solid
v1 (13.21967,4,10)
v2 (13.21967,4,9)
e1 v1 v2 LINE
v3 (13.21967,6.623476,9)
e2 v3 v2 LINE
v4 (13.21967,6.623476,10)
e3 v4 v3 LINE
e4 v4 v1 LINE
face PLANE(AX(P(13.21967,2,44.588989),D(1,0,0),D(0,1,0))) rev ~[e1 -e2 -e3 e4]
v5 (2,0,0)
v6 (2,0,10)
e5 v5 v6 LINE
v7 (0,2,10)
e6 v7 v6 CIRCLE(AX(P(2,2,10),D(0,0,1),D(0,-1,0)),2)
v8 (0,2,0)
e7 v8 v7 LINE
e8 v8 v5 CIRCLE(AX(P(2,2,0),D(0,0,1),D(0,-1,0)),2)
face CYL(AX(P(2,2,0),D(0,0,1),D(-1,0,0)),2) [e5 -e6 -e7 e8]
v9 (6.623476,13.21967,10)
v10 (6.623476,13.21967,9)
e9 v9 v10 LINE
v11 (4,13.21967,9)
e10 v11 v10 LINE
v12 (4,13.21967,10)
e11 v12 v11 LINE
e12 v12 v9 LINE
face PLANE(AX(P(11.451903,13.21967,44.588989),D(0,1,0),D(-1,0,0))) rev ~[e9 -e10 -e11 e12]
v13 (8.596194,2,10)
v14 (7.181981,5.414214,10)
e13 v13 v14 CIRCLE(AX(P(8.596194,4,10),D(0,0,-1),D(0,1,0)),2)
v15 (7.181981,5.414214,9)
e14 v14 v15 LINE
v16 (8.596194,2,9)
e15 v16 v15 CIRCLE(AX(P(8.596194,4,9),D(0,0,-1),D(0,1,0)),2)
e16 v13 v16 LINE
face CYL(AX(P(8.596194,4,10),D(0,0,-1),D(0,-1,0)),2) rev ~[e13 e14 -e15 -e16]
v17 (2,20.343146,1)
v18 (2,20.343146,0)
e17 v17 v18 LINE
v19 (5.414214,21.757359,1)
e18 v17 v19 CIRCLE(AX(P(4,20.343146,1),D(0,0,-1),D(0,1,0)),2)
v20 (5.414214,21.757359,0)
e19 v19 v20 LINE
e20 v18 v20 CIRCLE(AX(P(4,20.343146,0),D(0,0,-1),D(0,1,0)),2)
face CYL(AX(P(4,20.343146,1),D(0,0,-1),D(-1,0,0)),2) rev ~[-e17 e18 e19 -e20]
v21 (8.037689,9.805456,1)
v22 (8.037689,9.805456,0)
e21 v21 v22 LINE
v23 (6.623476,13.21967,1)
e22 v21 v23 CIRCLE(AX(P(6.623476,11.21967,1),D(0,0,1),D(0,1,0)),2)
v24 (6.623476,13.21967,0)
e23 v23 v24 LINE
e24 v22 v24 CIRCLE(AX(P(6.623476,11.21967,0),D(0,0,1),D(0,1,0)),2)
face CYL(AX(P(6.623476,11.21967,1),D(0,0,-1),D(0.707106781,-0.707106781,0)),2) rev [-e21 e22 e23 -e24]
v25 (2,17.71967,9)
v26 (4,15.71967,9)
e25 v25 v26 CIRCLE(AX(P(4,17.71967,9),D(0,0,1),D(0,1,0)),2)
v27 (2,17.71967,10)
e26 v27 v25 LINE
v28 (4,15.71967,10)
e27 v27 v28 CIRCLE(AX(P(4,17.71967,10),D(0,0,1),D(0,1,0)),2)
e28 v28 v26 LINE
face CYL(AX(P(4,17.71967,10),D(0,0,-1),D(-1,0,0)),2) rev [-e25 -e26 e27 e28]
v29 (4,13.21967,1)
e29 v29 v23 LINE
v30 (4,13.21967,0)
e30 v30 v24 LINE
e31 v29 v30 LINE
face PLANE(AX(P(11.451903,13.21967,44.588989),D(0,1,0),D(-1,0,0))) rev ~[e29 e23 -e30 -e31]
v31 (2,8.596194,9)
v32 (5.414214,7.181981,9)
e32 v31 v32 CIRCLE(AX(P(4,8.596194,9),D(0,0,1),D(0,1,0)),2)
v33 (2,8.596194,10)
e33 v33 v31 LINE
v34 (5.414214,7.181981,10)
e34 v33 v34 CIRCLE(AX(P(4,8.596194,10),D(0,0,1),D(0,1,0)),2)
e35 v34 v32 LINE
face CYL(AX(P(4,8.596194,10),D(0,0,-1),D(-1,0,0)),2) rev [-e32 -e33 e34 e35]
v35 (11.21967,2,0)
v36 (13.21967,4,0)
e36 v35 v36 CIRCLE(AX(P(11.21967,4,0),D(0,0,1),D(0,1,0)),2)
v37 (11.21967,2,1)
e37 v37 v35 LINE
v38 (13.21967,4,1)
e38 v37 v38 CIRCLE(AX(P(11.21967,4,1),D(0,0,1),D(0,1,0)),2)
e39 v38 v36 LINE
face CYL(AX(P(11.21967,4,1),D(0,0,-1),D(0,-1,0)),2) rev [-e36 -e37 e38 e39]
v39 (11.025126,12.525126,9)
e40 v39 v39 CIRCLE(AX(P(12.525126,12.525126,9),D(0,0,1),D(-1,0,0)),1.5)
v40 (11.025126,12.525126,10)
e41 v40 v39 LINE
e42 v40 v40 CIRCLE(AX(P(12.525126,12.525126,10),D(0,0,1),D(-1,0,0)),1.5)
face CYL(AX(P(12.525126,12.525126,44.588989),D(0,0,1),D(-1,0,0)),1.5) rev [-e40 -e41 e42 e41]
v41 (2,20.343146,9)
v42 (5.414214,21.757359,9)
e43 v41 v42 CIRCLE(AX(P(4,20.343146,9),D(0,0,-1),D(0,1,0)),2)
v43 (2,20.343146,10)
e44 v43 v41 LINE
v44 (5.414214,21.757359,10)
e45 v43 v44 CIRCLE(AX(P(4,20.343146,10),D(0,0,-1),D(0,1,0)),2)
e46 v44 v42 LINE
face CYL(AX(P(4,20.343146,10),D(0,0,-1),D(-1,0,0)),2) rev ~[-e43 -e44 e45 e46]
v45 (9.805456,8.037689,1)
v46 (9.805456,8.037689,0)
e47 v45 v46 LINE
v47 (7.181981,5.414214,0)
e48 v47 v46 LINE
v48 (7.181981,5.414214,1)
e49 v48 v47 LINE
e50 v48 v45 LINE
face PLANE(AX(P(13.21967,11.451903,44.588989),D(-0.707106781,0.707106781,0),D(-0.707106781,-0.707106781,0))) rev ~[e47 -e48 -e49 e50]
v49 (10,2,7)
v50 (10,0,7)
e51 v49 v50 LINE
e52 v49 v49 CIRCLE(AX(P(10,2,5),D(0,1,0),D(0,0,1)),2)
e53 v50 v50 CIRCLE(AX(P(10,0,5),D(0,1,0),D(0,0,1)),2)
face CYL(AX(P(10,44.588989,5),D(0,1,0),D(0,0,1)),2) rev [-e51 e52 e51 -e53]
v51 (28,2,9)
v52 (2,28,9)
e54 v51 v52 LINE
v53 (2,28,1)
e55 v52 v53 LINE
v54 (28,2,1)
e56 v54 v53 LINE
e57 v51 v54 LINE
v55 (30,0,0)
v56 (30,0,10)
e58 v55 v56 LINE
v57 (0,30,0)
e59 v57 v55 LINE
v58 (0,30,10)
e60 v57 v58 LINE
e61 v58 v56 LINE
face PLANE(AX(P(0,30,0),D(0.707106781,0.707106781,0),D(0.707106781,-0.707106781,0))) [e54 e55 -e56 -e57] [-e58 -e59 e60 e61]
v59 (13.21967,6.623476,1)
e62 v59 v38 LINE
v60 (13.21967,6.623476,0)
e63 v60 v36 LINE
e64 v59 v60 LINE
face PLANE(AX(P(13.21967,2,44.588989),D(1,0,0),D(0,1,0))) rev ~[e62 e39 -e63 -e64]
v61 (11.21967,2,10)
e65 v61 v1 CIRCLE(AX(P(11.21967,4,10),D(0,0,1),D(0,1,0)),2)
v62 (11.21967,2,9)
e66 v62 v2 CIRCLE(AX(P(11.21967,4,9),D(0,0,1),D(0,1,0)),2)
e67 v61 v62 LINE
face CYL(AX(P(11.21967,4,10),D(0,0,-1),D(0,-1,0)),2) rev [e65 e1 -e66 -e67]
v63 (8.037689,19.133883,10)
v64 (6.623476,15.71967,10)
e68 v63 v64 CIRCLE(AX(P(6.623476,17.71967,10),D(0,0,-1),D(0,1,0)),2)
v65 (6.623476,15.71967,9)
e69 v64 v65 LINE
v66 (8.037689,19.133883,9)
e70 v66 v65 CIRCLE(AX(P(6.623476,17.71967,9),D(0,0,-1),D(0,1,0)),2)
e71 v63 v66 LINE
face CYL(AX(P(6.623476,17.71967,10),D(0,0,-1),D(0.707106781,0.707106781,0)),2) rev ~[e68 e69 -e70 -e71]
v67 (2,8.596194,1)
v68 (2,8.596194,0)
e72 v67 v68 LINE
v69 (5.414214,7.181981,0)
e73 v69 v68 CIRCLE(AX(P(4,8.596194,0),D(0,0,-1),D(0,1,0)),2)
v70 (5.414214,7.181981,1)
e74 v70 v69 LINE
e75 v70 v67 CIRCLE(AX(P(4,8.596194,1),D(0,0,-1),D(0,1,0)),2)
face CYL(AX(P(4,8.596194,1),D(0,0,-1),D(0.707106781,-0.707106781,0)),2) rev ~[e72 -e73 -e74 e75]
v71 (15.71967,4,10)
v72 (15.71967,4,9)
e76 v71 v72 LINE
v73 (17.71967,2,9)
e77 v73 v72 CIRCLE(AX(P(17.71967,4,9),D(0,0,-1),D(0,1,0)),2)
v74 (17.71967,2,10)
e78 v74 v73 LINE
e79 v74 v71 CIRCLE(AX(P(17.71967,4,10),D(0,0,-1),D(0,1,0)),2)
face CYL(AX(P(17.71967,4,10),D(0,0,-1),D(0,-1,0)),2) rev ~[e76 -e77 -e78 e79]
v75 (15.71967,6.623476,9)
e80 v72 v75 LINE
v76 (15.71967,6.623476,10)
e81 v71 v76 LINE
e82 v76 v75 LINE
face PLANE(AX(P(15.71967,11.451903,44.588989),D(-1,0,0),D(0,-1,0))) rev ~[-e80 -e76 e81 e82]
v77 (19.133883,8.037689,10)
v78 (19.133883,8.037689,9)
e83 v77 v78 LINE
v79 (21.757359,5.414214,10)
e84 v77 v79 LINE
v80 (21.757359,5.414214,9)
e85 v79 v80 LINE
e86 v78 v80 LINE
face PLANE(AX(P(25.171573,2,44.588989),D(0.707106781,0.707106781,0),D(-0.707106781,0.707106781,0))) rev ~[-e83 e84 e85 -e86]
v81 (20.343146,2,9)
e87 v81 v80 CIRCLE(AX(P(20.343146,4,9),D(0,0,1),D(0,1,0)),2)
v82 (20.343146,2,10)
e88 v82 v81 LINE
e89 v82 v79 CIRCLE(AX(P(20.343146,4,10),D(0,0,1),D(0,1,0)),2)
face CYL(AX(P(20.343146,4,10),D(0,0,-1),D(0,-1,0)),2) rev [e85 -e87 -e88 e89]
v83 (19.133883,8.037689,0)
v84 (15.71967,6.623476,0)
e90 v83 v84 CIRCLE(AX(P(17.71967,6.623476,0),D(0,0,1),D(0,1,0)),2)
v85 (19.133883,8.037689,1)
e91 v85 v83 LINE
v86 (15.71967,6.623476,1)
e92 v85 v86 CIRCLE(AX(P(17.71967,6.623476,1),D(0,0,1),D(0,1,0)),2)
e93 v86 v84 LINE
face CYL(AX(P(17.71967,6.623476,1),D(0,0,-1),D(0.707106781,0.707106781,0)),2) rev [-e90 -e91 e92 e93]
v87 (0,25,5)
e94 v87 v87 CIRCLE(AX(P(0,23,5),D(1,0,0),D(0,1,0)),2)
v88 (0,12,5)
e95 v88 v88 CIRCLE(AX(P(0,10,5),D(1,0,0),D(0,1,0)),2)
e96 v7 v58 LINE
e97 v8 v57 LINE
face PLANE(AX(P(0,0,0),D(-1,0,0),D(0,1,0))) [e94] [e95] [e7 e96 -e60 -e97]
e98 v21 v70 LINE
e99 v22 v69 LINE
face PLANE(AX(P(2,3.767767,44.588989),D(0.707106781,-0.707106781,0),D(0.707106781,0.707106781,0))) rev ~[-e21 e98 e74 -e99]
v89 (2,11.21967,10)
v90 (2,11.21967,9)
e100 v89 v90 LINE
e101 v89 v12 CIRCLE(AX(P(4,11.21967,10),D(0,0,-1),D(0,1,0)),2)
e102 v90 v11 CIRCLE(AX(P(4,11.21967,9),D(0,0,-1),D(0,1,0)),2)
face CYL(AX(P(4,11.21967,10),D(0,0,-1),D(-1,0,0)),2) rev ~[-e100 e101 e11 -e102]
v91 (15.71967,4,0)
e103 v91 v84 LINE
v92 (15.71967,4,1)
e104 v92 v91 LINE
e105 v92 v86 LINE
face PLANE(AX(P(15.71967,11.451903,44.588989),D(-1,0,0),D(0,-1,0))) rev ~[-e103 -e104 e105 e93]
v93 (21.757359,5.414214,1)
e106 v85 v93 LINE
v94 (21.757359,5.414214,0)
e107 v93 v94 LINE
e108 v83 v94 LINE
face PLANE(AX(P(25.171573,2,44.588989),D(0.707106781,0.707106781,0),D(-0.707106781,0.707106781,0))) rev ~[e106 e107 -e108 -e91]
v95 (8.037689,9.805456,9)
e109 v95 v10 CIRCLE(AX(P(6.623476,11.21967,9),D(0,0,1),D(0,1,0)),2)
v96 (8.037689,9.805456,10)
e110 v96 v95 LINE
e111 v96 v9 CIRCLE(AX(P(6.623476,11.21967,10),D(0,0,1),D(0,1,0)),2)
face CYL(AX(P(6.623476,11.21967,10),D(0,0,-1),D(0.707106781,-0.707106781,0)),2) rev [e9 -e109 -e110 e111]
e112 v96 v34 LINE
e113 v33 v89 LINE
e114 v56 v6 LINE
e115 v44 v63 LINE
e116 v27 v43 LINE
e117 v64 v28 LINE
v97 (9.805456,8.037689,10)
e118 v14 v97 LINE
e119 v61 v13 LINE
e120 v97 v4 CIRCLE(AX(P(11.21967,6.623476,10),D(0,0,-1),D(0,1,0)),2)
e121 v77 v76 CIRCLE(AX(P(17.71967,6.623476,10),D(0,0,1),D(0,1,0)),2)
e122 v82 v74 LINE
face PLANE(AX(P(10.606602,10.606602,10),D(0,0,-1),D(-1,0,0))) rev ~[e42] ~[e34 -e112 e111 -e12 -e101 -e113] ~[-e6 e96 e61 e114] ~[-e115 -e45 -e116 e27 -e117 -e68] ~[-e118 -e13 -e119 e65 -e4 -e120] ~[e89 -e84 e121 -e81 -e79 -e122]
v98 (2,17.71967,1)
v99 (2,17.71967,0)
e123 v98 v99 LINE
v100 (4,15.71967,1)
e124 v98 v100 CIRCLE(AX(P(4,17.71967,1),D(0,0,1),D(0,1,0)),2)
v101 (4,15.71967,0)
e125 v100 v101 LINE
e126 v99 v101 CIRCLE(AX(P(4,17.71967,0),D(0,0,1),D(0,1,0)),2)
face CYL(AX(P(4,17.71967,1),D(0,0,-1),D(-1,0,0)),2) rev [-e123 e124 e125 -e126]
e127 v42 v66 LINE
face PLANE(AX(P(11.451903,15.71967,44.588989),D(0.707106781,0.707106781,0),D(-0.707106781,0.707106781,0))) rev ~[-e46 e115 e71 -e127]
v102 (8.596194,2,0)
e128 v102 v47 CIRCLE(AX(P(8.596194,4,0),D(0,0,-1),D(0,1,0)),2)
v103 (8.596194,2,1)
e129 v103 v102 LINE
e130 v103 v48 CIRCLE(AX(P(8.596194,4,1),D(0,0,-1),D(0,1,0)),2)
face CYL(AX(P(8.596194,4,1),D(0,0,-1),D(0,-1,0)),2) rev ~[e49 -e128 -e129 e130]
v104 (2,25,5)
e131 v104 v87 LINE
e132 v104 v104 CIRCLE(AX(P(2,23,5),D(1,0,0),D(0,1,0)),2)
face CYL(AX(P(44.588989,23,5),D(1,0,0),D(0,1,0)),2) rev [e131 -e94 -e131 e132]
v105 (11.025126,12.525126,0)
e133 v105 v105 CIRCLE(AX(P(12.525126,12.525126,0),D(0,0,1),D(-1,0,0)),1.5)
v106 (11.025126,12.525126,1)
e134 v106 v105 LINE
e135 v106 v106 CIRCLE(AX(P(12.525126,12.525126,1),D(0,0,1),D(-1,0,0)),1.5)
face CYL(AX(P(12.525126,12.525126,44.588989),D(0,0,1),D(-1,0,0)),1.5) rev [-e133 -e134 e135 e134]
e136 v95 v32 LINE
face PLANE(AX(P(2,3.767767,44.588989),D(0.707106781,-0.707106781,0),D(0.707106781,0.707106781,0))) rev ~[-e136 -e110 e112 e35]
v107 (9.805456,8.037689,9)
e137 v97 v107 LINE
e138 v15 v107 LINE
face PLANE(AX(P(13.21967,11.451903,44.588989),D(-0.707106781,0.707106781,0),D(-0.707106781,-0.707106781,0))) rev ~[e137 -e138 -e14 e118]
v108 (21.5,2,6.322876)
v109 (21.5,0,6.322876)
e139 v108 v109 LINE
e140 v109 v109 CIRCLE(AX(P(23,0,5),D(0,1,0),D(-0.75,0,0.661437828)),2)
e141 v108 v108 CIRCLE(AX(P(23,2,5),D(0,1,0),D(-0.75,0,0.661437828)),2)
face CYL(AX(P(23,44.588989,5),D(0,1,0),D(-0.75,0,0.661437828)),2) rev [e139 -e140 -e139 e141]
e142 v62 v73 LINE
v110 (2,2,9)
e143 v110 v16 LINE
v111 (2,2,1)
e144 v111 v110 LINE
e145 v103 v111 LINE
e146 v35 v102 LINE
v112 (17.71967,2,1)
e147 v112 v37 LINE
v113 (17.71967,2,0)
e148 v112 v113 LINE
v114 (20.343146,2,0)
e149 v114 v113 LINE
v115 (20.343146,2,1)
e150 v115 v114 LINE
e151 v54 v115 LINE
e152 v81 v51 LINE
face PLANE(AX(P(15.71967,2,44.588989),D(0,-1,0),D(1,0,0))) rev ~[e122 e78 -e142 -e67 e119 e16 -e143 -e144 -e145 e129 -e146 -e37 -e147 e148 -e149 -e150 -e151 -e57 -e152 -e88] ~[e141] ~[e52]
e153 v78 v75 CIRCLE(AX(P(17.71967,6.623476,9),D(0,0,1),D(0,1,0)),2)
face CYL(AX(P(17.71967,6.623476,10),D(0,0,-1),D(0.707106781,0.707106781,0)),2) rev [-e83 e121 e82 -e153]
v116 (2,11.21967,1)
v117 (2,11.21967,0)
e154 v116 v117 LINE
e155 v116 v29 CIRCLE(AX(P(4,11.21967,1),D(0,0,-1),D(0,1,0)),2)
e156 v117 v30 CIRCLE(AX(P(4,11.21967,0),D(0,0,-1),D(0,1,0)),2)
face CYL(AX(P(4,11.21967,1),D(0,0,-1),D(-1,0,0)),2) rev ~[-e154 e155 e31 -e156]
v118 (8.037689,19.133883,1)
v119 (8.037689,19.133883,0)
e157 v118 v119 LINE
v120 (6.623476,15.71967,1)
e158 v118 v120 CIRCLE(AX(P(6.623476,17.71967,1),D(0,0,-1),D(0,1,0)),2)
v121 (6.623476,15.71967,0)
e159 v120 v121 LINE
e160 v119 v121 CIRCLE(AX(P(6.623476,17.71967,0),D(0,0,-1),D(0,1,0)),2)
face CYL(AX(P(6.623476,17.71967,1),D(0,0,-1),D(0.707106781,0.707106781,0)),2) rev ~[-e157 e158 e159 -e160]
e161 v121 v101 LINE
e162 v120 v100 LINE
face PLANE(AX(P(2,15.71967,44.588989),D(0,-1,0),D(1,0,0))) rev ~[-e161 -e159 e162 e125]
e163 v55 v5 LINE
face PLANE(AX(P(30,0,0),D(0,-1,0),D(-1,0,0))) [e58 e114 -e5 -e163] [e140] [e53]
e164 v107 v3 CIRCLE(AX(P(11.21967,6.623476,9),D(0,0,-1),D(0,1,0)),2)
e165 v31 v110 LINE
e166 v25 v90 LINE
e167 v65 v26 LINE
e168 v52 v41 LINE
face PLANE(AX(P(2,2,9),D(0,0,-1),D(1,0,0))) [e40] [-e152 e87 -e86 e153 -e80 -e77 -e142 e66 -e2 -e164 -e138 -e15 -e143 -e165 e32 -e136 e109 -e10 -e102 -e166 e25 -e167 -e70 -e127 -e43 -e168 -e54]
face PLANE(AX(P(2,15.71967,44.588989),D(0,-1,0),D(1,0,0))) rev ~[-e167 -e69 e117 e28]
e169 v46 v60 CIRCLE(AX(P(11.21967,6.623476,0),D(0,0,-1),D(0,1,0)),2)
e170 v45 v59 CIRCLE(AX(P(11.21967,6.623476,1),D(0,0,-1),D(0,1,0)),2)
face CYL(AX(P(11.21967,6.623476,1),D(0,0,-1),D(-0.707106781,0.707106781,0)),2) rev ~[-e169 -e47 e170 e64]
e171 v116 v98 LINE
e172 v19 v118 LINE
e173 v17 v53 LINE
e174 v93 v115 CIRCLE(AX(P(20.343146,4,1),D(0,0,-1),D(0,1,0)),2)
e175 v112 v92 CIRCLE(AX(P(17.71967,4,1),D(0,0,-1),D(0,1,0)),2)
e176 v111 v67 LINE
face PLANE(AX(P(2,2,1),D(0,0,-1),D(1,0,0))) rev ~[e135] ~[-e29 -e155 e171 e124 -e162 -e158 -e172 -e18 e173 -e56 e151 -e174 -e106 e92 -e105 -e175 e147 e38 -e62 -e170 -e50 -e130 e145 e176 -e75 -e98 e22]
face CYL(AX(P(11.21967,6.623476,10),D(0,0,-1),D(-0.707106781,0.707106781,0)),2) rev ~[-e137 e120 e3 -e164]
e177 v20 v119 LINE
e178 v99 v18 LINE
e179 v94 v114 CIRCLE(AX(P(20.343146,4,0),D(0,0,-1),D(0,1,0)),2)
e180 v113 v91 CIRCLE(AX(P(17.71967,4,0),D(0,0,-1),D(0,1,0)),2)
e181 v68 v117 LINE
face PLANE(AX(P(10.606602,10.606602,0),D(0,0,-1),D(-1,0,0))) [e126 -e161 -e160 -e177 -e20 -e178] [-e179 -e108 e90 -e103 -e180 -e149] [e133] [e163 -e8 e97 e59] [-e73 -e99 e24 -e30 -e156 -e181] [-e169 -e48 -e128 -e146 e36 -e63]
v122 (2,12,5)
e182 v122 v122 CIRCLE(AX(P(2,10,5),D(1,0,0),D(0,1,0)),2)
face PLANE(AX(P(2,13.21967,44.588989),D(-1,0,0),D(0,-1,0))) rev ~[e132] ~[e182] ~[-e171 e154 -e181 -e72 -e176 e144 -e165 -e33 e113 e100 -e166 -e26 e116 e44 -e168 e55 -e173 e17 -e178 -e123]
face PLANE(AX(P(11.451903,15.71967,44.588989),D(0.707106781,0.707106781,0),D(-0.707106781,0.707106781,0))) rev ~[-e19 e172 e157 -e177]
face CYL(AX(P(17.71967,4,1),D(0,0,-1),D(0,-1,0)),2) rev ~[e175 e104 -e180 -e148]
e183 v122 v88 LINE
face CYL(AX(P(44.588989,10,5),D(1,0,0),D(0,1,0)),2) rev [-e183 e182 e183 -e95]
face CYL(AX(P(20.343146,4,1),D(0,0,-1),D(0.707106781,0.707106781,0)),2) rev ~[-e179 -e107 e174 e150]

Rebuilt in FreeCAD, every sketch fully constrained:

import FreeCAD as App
import Part
import Sketcher
Q = App.Units.Quantity


def edges_at(feature, points):
    """Names of the edges that pass closest to the given points."""
    edges = feature.Shape.Edges
    near = lambda p: min(range(len(edges)), key=lambda i: edges[i].distToShape(Part.Vertex(*p))[0])
    return sorted({f"Edge{near(p) + 1}" for p in points})


def add_polygon(sketch, points):
    """Adds a closed chain of lines whose ends are joined by coincident constraints."""
    first, n = sketch.GeometryCount, len(points)
    for a, b in zip(points, points[1:] + points[:1]):
        sketch.addGeometry(Part.LineSegment(App.Vector(*a, 0), App.Vector(*b, 0)), False)
    for i in range(n):
        sketch.addConstraint(Sketcher.Constraint("Coincident", first + i, 2, first + (i + 1) % n, 1))

doc = App.newDocument("Part")
body = doc.addObject("PartDesign::Body", "Body")

# Sketch on XY plane
sketch1 = body.newObject("Sketcher::SketchObject", "Sketch")
sketch1.AttachmentSupport = (doc.getObject("XY_Plane"), [""])
sketch1.MapMode = "FlatFace"
add_polygon(sketch1, [(0, 30), (0, 0), (30, 0)])  # lines 0-2
sketch1.addConstraint([
    Sketcher.Constraint("Vertical", 0),
    Sketcher.Constraint("Horizontal", 1),
    Sketcher.Constraint("Coincident", 0, 2, -1, 1),
    Sketcher.Constraint("Equal", 1, 0),
    Sketcher.Constraint("DistanceX", 1, 1, 1, 2, Q("30 mm")),
])
pad1 = body.newObject("PartDesign::Pad", "Pad")
pad1.Profile = sketch1
pad1.Length = 10

# Sketch on YZ plane
sketch2 = body.newObject("Sketcher::SketchObject", "Sketch001")
sketch2.AttachmentSupport = (doc.getObject("YZ_Plane"), [""])
sketch2.MapMode = "FlatFace"
sketch2.addGeometry([
    Part.Circle(App.Vector(23, 5, 0), App.Vector(0, 0, 1), 2),
    Part.Circle(App.Vector(10, 5, 0), App.Vector(0, 0, 1), 2),
], False)
sketch2.addConstraint([
    Sketcher.Constraint("Equal", 0, 1),
    Sketcher.Constraint("Horizontal", 0, 3, 1, 3),
    Sketcher.Constraint("Diameter", 0, Q("4 mm")),
    Sketcher.Constraint("DistanceX", -1, 1, 0, 3, Q("23 mm")),
    Sketcher.Constraint("DistanceY", -1, 1, 0, 3, Q("5 mm")),
    Sketcher.Constraint("DistanceX", -1, 1, 1, 3, Q("10 mm")),
])
pocket1 = body.newObject("PartDesign::Pocket", "Pocket")
pocket1.Profile = sketch2
pocket1.Type = "ThroughAll"
pocket1.Midplane = True

# Sketch on XZ plane
sketch3 = body.newObject("Sketcher::SketchObject", "Sketch002")
sketch3.AttachmentSupport = (doc.getObject("XZ_Plane"), [""])
sketch3.MapMode = "FlatFace"
sketch3.addGeometry([
    Part.Circle(App.Vector(23, 5, 0), App.Vector(0, 0, 1), 2),
    Part.Circle(App.Vector(10, 5, 0), App.Vector(0, 0, 1), 2),
], False)
sketch3.addConstraint([
    Sketcher.Constraint("Equal", 0, 1),
    Sketcher.Constraint("Horizontal", 0, 3, 1, 3),
    Sketcher.Constraint("Diameter", 0, Q("4 mm")),
    Sketcher.Constraint("DistanceX", -1, 1, 0, 3, Q("23 mm")),
    Sketcher.Constraint("DistanceY", -1, 1, 0, 3, Q("5 mm")),
    Sketcher.Constraint("DistanceX", -1, 1, 1, 3, Q("10 mm")),
])
pocket2 = body.newObject("PartDesign::Pocket", "Pocket001")
pocket2.Profile = sketch3
pocket2.Type = "ThroughAll"
pocket2.Midplane = True

# Sketch on XZ plane
sketch4 = body.newObject("Sketcher::SketchObject", "Sketch003")
sketch4.AttachmentSupport = (doc.getObject("XZ_Plane"), [""])
sketch4.MapMode = "FlatFace"
sketch4.AttachmentOffset = App.Placement(App.Vector(0, 0, -2), App.Rotation())
add_polygon(sketch4, [(2, 9), (2, 1), (29, 1), (29, 9)])  # lines 0-3
sketch4.addConstraint([
    Sketcher.Constraint("Vertical", 0),
    Sketcher.Constraint("Horizontal", 1),
    Sketcher.Constraint("Vertical", 2),
    Sketcher.Constraint("Horizontal", 3),
    Sketcher.Constraint("DistanceX", 1, 1, 1, 2, Q("27 mm")),
    Sketcher.Constraint("DistanceY", 0, 2, 0, 1, Q("8 mm")),
    Sketcher.Constraint("DistanceX", -1, 1, 0, 2, Q("2 mm")),
    Sketcher.Constraint("DistanceY", -1, 1, 0, 2, Q("1 mm")),
])
pocket3 = body.newObject("PartDesign::Pocket", "Pocket002")
pocket3.Profile = sketch4
pocket3.Type = "ThroughAll"

# Sketch on XY plane
sketch5 = body.newObject("Sketcher::SketchObject", "Sketch004")
sketch5.AttachmentSupport = (doc.getObject("XY_Plane"), [""])
sketch5.MapMode = "FlatFace"
add_polygon(sketch5, [(15.71967, 11.451903), (25.171573, 2), (15.71967, 2)])  # lines 0-2
add_polygon(sketch5, [(2, 15.71967), (2, 25.171573), (11.451903, 15.71967)])  # lines 3-5
add_polygon(sketch5, [(13.21967, 2), (3.767767, 2), (13.21967, 11.451903)])  # lines 6-8
add_polygon(sketch5, [(11.451903, 13.21967), (2, 3.767767), (2, 13.21967)])  # lines 9-11
sketch5.addConstraint([
    Sketcher.Constraint("Horizontal", 1),
    Sketcher.Constraint("Vertical", 2),
    Sketcher.Constraint("Vertical", 3),
    Sketcher.Constraint("Horizontal", 5),
    Sketcher.Constraint("Horizontal", 6),
    Sketcher.Constraint("Vertical", 8),
    Sketcher.Constraint("Vertical", 10),
    Sketcher.Constraint("Horizontal", 11),
    Sketcher.Constraint("Parallel", 0, 4),
    Sketcher.Constraint("Perpendicular", 4, 7),
    Sketcher.Constraint("Parallel", 7, 9),
    Sketcher.Constraint("Horizontal", 1, 2, 6, 2),
    Sketcher.Constraint("Horizontal", 2, 2, 7, 2),
    Sketcher.Constraint("Vertical", 5, 2, 9, 2),
    Sketcher.Constraint("Vertical", 4, 2, 11, 2),
    Sketcher.Constraint("Equal", 1, 5),
    Sketcher.Constraint("Equal", 5, 6),
    Sketcher.Constraint("DistanceY", -1, 1, 0, 2, Q("2 mm")),
    Sketcher.Constraint("DistanceX", -1, 1, 3, 2, Q("2 mm")),
    Sketcher.Constraint("DistanceX", 7, 2, 2, 2, Q("2.5 mm")),
    Sketcher.Constraint("DistanceY", 10, 2, 5, 2, Q("2.5 mm")),
    Sketcher.Constraint("Distance", 0, Q("13.367009 mm")),
    Sketcher.Constraint("DistanceX", -1, 1, 1, 2, Q("15.71967 mm")),
    Sketcher.Constraint("DistanceY", -1, 1, 4, 2, Q("15.71967 mm")),
])
pocket4 = body.newObject("PartDesign::Pocket", "Pocket003")
pocket4.Profile = sketch5
pocket4.Type = "ThroughAll"
pocket4.Midplane = True
doc.recompute()

fillet = body.newObject("PartDesign::Fillet", "Fillet")
fillet.Base = (pocket4, edges_at(pocket4, [
    (2, 13.22, 0.5),
    (2, 13.22, 9.5),
    (2, 3.768, 0.5),
    (2, 3.768, 9.5),
    (11.452, 13.22, 0.5),
    (11.452, 13.22, 9.5),
    (3.768, 2, 0.5),
    (3.768, 2, 9.5),
    (13.22, 11.452, 0.5),
    (13.22, 11.452, 9.5),
    (13.22, 2, 0.5),
    (13.22, 2, 9.5),
    (2, 25.172, 0.5),
    (2, 25.172, 9.5),
    (11.452, 15.72, 0.5),
    (11.452, 15.72, 9.5),
    (2, 15.72, 0.5),
    (2, 15.72, 9.5),
    (0, 0, 5),
    (15.72, 2, 0.5),
    (15.72, 2, 9.5),
    (25.172, 2, 0.5),
    (25.172, 2, 9.5),
    (15.72, 11.452, 0.5),
    (15.72, 11.452, 9.5),
]))
fillet.Radius = 2

# Sketch on XY plane
sketch6 = body.newObject("Sketcher::SketchObject", "Sketch005")
sketch6.AttachmentSupport = (doc.getObject("XY_Plane"), [""])
sketch6.MapMode = "FlatFace"
sketch6.addGeometry(Part.Circle(App.Vector(12.525126, 12.525126, 0), App.Vector(0, 0, 1), 1.5), False)
sketch6.addConstraint([
    Sketcher.Constraint("Diameter", 0, Q("3 mm")),
    Sketcher.Constraint("DistanceX", -1, 1, 0, 3, Q("12.525126 mm")),
    Sketcher.Constraint("DistanceY", -1, 1, 0, 3, Q("12.525126 mm")),
])
pocket5 = body.newObject("PartDesign::Pocket", "Pocket004")
pocket5.Profile = sketch6
pocket5.Type = "ThroughAll"
pocket5.Midplane = True

doc.recompute()
